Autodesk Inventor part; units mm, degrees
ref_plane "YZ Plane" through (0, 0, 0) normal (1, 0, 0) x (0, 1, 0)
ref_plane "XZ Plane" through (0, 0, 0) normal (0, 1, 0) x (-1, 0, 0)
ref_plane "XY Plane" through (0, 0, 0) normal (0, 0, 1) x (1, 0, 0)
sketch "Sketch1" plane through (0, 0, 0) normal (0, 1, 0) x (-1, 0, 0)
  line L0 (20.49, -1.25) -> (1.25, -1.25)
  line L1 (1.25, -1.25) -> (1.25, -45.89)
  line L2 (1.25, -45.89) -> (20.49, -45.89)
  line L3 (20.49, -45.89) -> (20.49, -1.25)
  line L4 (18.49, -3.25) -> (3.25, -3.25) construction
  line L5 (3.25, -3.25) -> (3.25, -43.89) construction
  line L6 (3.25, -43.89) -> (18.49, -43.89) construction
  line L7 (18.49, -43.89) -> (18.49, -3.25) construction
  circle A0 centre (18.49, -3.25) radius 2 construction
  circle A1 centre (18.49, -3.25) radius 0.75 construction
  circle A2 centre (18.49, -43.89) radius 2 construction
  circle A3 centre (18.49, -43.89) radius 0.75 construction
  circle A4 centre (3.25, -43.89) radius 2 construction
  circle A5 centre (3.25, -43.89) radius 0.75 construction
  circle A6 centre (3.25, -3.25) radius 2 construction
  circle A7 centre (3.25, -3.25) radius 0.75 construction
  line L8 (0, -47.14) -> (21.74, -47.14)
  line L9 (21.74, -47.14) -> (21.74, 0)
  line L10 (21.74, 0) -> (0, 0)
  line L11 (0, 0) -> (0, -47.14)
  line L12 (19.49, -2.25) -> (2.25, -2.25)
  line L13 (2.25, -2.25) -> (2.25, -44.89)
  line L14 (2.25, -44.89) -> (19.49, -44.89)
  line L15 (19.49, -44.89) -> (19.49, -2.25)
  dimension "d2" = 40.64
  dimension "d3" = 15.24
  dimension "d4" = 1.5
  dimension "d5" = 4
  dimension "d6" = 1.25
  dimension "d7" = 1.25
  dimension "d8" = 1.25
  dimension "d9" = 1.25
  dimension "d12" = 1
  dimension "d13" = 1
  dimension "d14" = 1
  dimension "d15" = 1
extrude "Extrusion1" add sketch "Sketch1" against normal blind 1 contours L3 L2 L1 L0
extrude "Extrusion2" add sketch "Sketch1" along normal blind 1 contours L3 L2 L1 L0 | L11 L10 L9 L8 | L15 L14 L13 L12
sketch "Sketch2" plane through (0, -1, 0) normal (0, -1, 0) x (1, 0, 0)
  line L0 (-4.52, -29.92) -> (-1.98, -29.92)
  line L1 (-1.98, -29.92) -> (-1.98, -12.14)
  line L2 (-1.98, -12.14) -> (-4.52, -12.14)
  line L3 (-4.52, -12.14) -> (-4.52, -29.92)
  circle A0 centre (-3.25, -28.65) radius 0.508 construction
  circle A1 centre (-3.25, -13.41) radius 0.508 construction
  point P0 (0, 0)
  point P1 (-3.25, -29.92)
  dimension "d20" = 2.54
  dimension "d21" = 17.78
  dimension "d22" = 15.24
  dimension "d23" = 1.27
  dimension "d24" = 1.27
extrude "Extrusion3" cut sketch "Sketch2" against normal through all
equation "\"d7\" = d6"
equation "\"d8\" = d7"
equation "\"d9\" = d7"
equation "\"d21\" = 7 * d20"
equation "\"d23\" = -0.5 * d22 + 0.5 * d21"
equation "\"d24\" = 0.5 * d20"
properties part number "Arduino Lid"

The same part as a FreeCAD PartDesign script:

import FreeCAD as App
import Part
import Sketcher
Q = App.Units.Quantity


def add_polygon(sketch, points):
    """Adds a closed chain of lines whose ends are joined by coincident constraints."""
    first, n = sketch.GeometryCount, len(points)
    for a, b in zip(points, points[1:] + points[:1]):
        sketch.addGeometry(Part.LineSegment(App.Vector(*a, 0), App.Vector(*b, 0)), False)
    for i in range(n):
        sketch.addConstraint(Sketcher.Constraint("Coincident", first + i, 2, first + (i + 1) % n, 1))

doc = App.newDocument("Part")
params = doc.addObject("Spreadsheet::Sheet", "Params")
for row, (alias, value) in enumerate([
    ("pad1_length", "1 mm"),
    ("pad2_length", "1 mm"),
    ("sketch3_width", "0.1 in"),
    ("sketch3_height", "0.7 in"),
], start=1):
    params.set(f"A{row}", alias)
    params.set(f"B{row}", "=" + value)
    params.setAlias(f"B{row}", alias)

body = doc.addObject("PartDesign::Body", "Body")

# Sketch on XZ plane
sketch1 = body.newObject("Sketcher::SketchObject", "Sketch")
sketch1.AttachmentSupport = (doc.getObject("XZ_Plane"), [""])
sketch1.MapMode = "FlatFace"
add_polygon(sketch1, [(-20, -46), (-20, -1), (-1, -1), (-1, -46)])  # lines 0-3
add_polygon(sketch1, [(-2, -2), (-19, -2), (-19, -45), (-2, -45)])  # lines 4-7
sketch1.addConstraint([
    Sketcher.Constraint("Vertical", 0),
    Sketcher.Constraint("Horizontal", 1),
    Sketcher.Constraint("Vertical", 2),
    Sketcher.Constraint("Horizontal", 3),
    Sketcher.Constraint("Horizontal", 4),
    Sketcher.Constraint("Vertical", 5),
    Sketcher.Constraint("Horizontal", 6),
    Sketcher.Constraint("Vertical", 7),
    Sketcher.Constraint("DistanceY", 0, 2, -1, 1, 1.25),
    Sketcher.Constraint("DistanceX", 1, 2, -1, 1, 1.25),
    Sketcher.Constraint("DistanceX", 0, 2, 4, 2, 1.0),
    Sketcher.Constraint("DistanceY", 4, 2, 0, 2, 1.0),
    Sketcher.Constraint("DistanceY", 3, 2, 5, 2, 1.0),
    Sketcher.Constraint("DistanceX", 6, 2, 2, 2, 1.0),
    Sketcher.Constraint("DistanceX", 1, 1, 1, 2, 19.24),
    Sketcher.Constraint("DistanceY", 0, 1, 0, 2, 44.64),
])
pad1 = body.newObject("PartDesign::Pad", "Pad")
pad1.Profile = sketch1
pad1.setExpression("Length", "Params.pad1_length")

# Sketch on XZ plane
sketch2 = body.newObject("Sketcher::SketchObject", "Sketch001")
sketch2.AttachmentSupport = (doc.getObject("XZ_Plane"), [""])
sketch2.MapMode = "FlatFace"
add_polygon(sketch2, [(0, 0), (0, -47), (-22, -47), (-22, 0)])  # lines 0-3
sketch2.addConstraint([
    Sketcher.Constraint("Vertical", 0),
    Sketcher.Constraint("Horizontal", 1),
    Sketcher.Constraint("Vertical", 2),
    Sketcher.Constraint("Horizontal", 3),
    Sketcher.Constraint("Coincident", 3, 2, -1, 1),
    Sketcher.Constraint("DistanceX", 1, 2, 1, 1, Q("0.8559 in")),
    Sketcher.Constraint("DistanceY", 0, 2, 0, 1, Q("1.8559 in")),
])
pad2 = body.newObject("PartDesign::Pad", "Pad001")
pad2.Profile = sketch2
pad2.setExpression("Length", "Params.pad2_length")
pad2.Reversed = True

# Sketch on XZ plane
sketch3 = body.newObject("Sketcher::SketchObject", "Sketch002")
sketch3.AttachmentSupport = (doc.getObject("XZ_Plane"), [""])
sketch3.MapMode = "FlatFace"
sketch3.AttachmentOffset = App.Placement(App.Vector(0, 0, 1), App.Rotation())
add_polygon(sketch3, [(-4.5, -12.1), (-4.5, -29.9), (-2, -29.9), (-2, -12.1)])  # lines 0-3
sketch3.addConstraint([
    Sketcher.Constraint("Vertical", 0),
    Sketcher.Constraint("Horizontal", 1),
    Sketcher.Constraint("Vertical", 2),
    Sketcher.Constraint("Horizontal", 3),
    Sketcher.Constraint("DistanceX", 1, 1, 1, 2, Q("0.1 in")),
    Sketcher.Constraint("DistanceY", 0, 2, 0, 1, Q("0.7 in")),
    Sketcher.Constraint("DistanceX", 0, 2, -1, 1, 4.52),
    Sketcher.Constraint("DistanceY", 0, 2, -1, 1, 29.92),
])
sketch3.setExpression("Constraints[8]", "Params.sketch3_width")
sketch3.setExpression("Constraints[9]", "Params.sketch3_height")
pocket1 = body.newObject("PartDesign::Pocket", "Pocket")
pocket1.Profile = sketch3
pocket1.Type = "ThroughAll"

doc.recompute()
